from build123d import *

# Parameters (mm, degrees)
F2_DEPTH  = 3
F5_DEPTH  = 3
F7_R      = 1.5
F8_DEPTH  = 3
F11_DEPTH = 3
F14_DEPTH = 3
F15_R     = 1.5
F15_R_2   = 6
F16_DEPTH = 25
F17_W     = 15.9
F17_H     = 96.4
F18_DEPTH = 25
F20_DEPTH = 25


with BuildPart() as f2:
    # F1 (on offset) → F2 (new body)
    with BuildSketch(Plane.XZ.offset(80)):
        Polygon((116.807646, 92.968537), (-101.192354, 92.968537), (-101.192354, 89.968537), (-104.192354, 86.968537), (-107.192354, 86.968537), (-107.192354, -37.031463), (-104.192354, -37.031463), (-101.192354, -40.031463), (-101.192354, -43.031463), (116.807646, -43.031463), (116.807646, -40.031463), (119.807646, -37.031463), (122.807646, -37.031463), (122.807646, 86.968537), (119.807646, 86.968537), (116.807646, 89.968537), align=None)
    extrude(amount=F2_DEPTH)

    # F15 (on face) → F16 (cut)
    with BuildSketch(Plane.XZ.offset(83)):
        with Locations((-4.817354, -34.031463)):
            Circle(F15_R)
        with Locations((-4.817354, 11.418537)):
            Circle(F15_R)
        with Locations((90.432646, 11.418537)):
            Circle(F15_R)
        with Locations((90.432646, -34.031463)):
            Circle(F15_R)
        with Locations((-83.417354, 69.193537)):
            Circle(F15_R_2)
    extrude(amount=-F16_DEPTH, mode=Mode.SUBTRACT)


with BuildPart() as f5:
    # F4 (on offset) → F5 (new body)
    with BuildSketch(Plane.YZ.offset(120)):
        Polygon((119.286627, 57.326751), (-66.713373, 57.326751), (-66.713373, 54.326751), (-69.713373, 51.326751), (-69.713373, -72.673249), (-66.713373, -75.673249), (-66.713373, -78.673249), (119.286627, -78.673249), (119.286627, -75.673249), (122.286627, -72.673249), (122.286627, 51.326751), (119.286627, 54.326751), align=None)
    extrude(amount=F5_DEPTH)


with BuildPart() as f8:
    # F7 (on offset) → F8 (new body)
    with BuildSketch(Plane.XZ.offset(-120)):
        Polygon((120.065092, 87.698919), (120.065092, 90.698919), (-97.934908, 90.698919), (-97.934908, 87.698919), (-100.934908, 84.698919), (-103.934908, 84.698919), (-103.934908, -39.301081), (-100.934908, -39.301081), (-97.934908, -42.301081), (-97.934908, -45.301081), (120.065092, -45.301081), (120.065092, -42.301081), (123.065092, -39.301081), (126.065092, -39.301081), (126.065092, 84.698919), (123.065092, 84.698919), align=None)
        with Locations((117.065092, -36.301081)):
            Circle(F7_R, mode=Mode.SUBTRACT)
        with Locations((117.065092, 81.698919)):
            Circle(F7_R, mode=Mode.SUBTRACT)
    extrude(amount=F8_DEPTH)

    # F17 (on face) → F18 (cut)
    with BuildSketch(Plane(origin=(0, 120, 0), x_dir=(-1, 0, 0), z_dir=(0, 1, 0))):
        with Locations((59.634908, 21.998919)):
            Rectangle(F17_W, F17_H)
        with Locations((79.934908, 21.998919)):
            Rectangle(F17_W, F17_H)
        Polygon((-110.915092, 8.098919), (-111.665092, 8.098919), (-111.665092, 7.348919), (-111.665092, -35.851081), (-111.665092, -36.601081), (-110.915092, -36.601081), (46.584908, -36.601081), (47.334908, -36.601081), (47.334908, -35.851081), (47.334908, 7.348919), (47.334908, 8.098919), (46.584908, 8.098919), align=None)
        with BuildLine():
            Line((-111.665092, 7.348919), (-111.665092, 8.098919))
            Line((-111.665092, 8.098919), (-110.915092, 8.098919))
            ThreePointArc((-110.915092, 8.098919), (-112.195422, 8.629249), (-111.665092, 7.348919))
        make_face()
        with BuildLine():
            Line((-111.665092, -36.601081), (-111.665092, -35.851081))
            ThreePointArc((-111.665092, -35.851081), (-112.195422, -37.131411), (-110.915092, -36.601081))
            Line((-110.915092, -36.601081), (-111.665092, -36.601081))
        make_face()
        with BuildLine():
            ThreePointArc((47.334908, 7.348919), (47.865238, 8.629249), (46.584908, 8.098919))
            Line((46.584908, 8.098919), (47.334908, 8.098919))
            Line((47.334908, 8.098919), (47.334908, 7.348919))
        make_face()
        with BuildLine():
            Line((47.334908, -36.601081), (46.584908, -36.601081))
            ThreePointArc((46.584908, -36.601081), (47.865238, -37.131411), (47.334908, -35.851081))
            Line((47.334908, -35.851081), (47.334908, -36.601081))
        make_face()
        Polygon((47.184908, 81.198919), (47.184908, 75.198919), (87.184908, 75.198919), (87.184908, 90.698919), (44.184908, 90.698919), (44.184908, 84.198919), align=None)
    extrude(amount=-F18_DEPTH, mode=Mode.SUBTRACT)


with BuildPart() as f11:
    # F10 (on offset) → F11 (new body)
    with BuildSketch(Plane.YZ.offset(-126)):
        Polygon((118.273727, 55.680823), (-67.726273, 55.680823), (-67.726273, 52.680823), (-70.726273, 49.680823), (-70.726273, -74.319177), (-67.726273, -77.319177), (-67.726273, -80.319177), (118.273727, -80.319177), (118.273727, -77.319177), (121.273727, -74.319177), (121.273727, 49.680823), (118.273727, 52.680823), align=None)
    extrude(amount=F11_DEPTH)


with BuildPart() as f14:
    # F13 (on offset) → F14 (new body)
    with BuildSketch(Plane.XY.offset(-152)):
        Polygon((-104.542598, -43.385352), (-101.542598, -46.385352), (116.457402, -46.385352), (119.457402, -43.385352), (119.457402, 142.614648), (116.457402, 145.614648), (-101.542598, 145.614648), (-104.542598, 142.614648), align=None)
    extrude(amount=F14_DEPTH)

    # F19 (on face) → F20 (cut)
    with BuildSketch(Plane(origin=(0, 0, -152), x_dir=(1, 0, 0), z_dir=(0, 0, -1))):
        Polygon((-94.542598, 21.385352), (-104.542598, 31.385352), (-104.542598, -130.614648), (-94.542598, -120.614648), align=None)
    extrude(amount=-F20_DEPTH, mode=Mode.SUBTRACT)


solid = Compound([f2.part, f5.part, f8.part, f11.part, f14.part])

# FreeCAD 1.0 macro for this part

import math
import FreeCAD as App
import Part
import Sketcher
Q = App.Units.Quantity


def add_polygon(sketch, points):
    """Adds a closed chain of lines whose ends are joined by coincident constraints."""
    first, n = sketch.GeometryCount, len(points)
    for a, b in zip(points, points[1:] + points[:1]):
        sketch.addGeometry(Part.LineSegment(App.Vector(*a, 0), App.Vector(*b, 0)), False)
    for i in range(n):
        sketch.addConstraint(Sketcher.Constraint("Coincident", first + i, 2, first + (i + 1) % n, 1))

doc = App.newDocument("Part")
body = doc.addObject("PartDesign::Body", "Body")

sketch1 = body.newObject("Sketcher::SketchObject", "Sketch")
sketch1.AttachmentSupport = (doc.getObject("XZ_Plane"), [""])
sketch1.MapMode = "FlatFace"
sketch1.AttachmentOffset = App.Placement(App.Vector(0, 0, 80), App.Rotation())
add_polygon(sketch1, [(116.8, 93), (-101.2, 93), (-101.2, 90), (-104.2, 87), (-107.2, 87), (-107.2, -37), (-104.2, -37), (-101.2, -40), (-101.2, -43), (116.8, -43), (116.8, -40), (119.8, -37), (122.8, -37), (122.8, 87), (119.8, 87), (116.8, 90)])
sketch1.addConstraint(Sketcher.Constraint("Horizontal", 0))
sketch1.addConstraint(Sketcher.Constraint("Vertical", 1))
sketch1.addConstraint(Sketcher.Constraint("Horizontal", 3))
sketch1.addConstraint(Sketcher.Constraint("Vertical", 4))
sketch1.addConstraint(Sketcher.Constraint("Horizontal", 5))
sketch1.addConstraint(Sketcher.Constraint("Vertical", 7))
sketch1.addConstraint(Sketcher.Constraint("Horizontal", 8))
sketch1.addConstraint(Sketcher.Constraint("Vertical", 9))
sketch1.addConstraint(Sketcher.Constraint("Horizontal", 11))
sketch1.addConstraint(Sketcher.Constraint("Vertical", 12))
sketch1.addConstraint(Sketcher.Constraint("Horizontal", 13))
sketch1.addConstraint(Sketcher.Constraint("Vertical", 15))
sketch1.addConstraint(Sketcher.Constraint("Perpendicular", 2, 6))
sketch1.addConstraint(Sketcher.Constraint("Perpendicular", 6, 10))
sketch1.addConstraint(Sketcher.Constraint("Perpendicular", 10, 14))
sketch1.addConstraint(Sketcher.Constraint("Horizontal", 6, 2, 9, 2))
sketch1.addConstraint(Sketcher.Constraint("Horizontal", 5, 2, 10, 2))
sketch1.addConstraint(Sketcher.Constraint("Horizontal", 3, 2, 12, 2))
sketch1.addConstraint(Sketcher.Constraint("Horizontal", 1, 2, 14, 2))
sketch1.addConstraint(Sketcher.Constraint("Vertical", 2, 2, 5, 2))
sketch1.addConstraint(Sketcher.Constraint("Vertical", 1, 2, 6, 2))
sketch1.addConstraint(Sketcher.Constraint("Vertical", 10, 2, 13, 2))
sketch1.addConstraint(Sketcher.Constraint("Vertical", 9, 2, 14, 2))
sketch1.addConstraint(Sketcher.Constraint("Equal", 5, 11))
sketch1.addConstraint(Sketcher.Constraint("Equal", 13, 1))
sketch1.addConstraint(Sketcher.Constraint("Equal", 1, 7))
sketch1.addConstraint(Sketcher.Constraint("DistanceX", 0, 2, 0, 1, 218.0))
sketch1.addConstraint(Sketcher.Constraint("DistanceX", 3, 2, 3, 1, 3.0))
sketch1.addConstraint(Sketcher.Constraint("DistanceY", 4, 2, 4, 1, 124.0))
sketch1.addConstraint(Sketcher.Constraint("DistanceX", 2, 2, 1, 2, 3.0))
sketch1.addConstraint(Sketcher.Constraint("DistanceX", 0, 2, -1, 1, 101.192354))
sketch1.addConstraint(Sketcher.Constraint("DistanceY", -1, 1, 0, 2, 92.968537))
pad1 = body.newObject("PartDesign::Pad", "Pad")
pad1.Profile = sketch1
pad1.Length = 3

sketch2 = body.newObject("Sketcher::SketchObject", "Sketch001")
sketch2.AttachmentSupport = (doc.getObject("XZ_Plane"), [""])
sketch2.MapMode = "FlatFace"
sketch2.AttachmentOffset = App.Placement(App.Vector(0, 0, 83), App.Rotation())
sketch2.addGeometry(Part.Circle(App.Vector(-4.8, -34, 0), App.Vector(0, 0, 1), 1.5), False)
sketch2.addGeometry(Part.Circle(App.Vector(-4.8, 11.4, 0), App.Vector(0, 0, 1), 1.5), False)
sketch2.addGeometry(Part.Circle(App.Vector(90.4, 11.4, 0), App.Vector(0, 0, 1), 1.5), False)
sketch2.addGeometry(Part.Circle(App.Vector(90.4, -34, 0), App.Vector(0, 0, 1), 1.5), False)
sketch2.addGeometry(Part.Circle(App.Vector(-83.4, 69.2, 0), App.Vector(0, 0, 1), 6), False)
sketch2.addConstraint(Sketcher.Constraint("Equal", 0, 1))
sketch2.addConstraint(Sketcher.Constraint("Equal", 1, 2))
sketch2.addConstraint(Sketcher.Constraint("Equal", 2, 3))
sketch2.addConstraint(Sketcher.Constraint("Horizontal", 1, 3, 2, 3))
sketch2.addConstraint(Sketcher.Constraint("Horizontal", 0, 3, 3, 3))
sketch2.addConstraint(Sketcher.Constraint("Vertical", 0, 3, 1, 3))
sketch2.addConstraint(Sketcher.Constraint("Vertical", 2, 3, 3, 3))
sketch2.addConstraint(Sketcher.Constraint("Diameter", 0, 3.0))
sketch2.addConstraint(Sketcher.Constraint("Diameter", 4, 12.0))
sketch2.addConstraint(Sketcher.Constraint("DistanceX", 4, 3, 1, 3, 78.6))
sketch2.addConstraint(Sketcher.Constraint("DistanceY", 0, 3, 1, 3, 45.45))
sketch2.addConstraint(Sketcher.Constraint("DistanceX", 1, 3, 2, 3, 95.25))
sketch2.addConstraint(Sketcher.Constraint("DistanceY", 1, 3, 4, 3, 57.775))
sketch2.addConstraint(Sketcher.Constraint("DistanceX", 0, 3, -1, 1, 4.817354))
sketch2.addConstraint(Sketcher.Constraint("DistanceY", 0, 3, -1, 1, 34.031463))
pocket1 = body.newObject("PartDesign::Pocket", "Pocket")
pocket1.Profile = sketch2
pocket1.Length = 25
body2 = doc.addObject("PartDesign::Body", "Body001")

sketch3 = body2.newObject("Sketcher::SketchObject", "Sketch002")
sketch3.AttachmentSupport = (doc.getObject("YZ_Plane001"), [""])
sketch3.MapMode = "FlatFace"
sketch3.AttachmentOffset = App.Placement(App.Vector(0, 0, 120), App.Rotation())
add_polygon(sketch3, [(119.3, 57.3), (-66.7, 57.3), (-66.7, 54.3), (-69.7, 51.3), (-69.7, -72.7), (-66.7, -75.7), (-66.7, -78.7), (119.3, -78.7), (119.3, -75.7), (122.3, -72.7), (122.3, 51.3), (119.3, 54.3)])
sketch3.addConstraint(Sketcher.Constraint("Horizontal", 0))
sketch3.addConstraint(Sketcher.Constraint("Vertical", 1))
sketch3.addConstraint(Sketcher.Constraint("Vertical", 3))
sketch3.addConstraint(Sketcher.Constraint("Vertical", 5))
sketch3.addConstraint(Sketcher.Constraint("Horizontal", 6))
sketch3.addConstraint(Sketcher.Constraint("Vertical", 7))
sketch3.addConstraint(Sketcher.Constraint("Vertical", 9))
sketch3.addConstraint(Sketcher.Constraint("Vertical", 11))
sketch3.addConstraint(Sketcher.Constraint("Perpendicular", 2, 4))
sketch3.addConstraint(Sketcher.Constraint("Perpendicular", 4, 8))
sketch3.addConstraint(Sketcher.Constraint("Perpendicular", 8, 10))
sketch3.addConstraint(Sketcher.Constraint("Horizontal", 4, 2, 7, 2))
sketch3.addConstraint(Sketcher.Constraint("Horizontal", 3, 2, 8, 2))
sketch3.addConstraint(Sketcher.Constraint("Horizontal", 2, 2, 9, 2))
sketch3.addConstraint(Sketcher.Constraint("Horizontal", 1, 2, 10, 2))
sketch3.addConstraint(Sketcher.Constraint("Vertical", 1, 2, 4, 2))
sketch3.addConstraint(Sketcher.Constraint("Vertical", 7, 2, 10, 2))
sketch3.addConstraint(Sketcher.Constraint("Equal", 1, 5))
sketch3.addConstraint(Sketcher.Constraint("DistanceX", 0, 2, 0, 1, 186.0))
sketch3.addConstraint(Sketcher.Constraint("DistanceY", 1, 2, 1, 1, 3.0))
sketch3.addConstraint(Sketcher.Constraint("DistanceY", 3, 2, 3, 1, 124.0))
sketch3.addConstraint(Sketcher.Constraint("DistanceX", 2, 2, 1, 2, 3.0))
sketch3.addConstraint(Sketcher.Constraint("DistanceY", -1, 1, 0, 2, 57.326751))
sketch3.addConstraint(Sketcher.Constraint("DistanceX", 0, 2, -1, 1, 66.713373))
pad2 = body2.newObject("PartDesign::Pad", "Pad001")
pad2.Profile = sketch3
pad2.Length = 3
body3 = doc.addObject("PartDesign::Body", "Body002")

sketch4 = body3.newObject("Sketcher::SketchObject", "Sketch003")
sketch4.AttachmentSupport = (doc.getObject("XZ_Plane002"), [""])
sketch4.MapMode = "FlatFace"
sketch4.AttachmentOffset = App.Placement(App.Vector(0, 0, -120), App.Rotation())
add_polygon(sketch4, [(120.1, 87.7), (120.1, 90.7), (-97.9, 90.7), (-97.9, 87.7), (-100.9, 84.7), (-103.9, 84.7), (-103.9, -39.3), (-100.9, -39.3), (-97.9, -42.3), (-97.9, -45.3), (120.1, -45.3), (120.1, -42.3), (123.1, -39.3), (126.1, -39.3), (126.1, 84.7), (123.1, 84.7)])
sketch4.addGeometry(Part.Circle(App.Vector(117.1, -36.3, 0), App.Vector(0, 0, 1), 1.5), False)
sketch4.addGeometry(Part.Circle(App.Vector(117.1, 81.7, 0), App.Vector(0, 0, 1), 1.5), False)
sketch4.addConstraint(Sketcher.Constraint("Vertical", 0))
sketch4.addConstraint(Sketcher.Constraint("Horizontal", 1))
sketch4.addConstraint(Sketcher.Constraint("Vertical", 2))
sketch4.addConstraint(Sketcher.Constraint("Horizontal", 4))
sketch4.addConstraint(Sketcher.Constraint("Vertical", 5))
sketch4.addConstraint(Sketcher.Constraint("Horizontal", 6))
sketch4.addConstraint(Sketcher.Constraint("Vertical", 8))
sketch4.addConstraint(Sketcher.Constraint("Horizontal", 9))
sketch4.addConstraint(Sketcher.Constraint("Vertical", 10))
sketch4.addConstraint(Sketcher.Constraint("Horizontal", 12))
sketch4.addConstraint(Sketcher.Constraint("Vertical", 13))
sketch4.addConstraint(Sketcher.Constraint("Horizontal", 14))
sketch4.addConstraint(Sketcher.Constraint("Equal", 16, 17))
sketch4.addConstraint(Sketcher.Constraint("Perpendicular", 3, 7))
sketch4.addConstraint(Sketcher.Constraint("Perpendicular", 7, 11))
sketch4.addConstraint(Sketcher.Constraint("Perpendicular", 11, 15))
sketch4.addConstraint(Sketcher.Constraint("Horizontal", 7, 2, 10, 2))
sketch4.addConstraint(Sketcher.Constraint("Horizontal", 6, 2, 11, 2))
sketch4.addConstraint(Sketcher.Constraint("Horizontal", 4, 2, 13, 2))
sketch4.addConstraint(Sketcher.Constraint("Horizontal", 2, 2, 15, 2))
sketch4.addConstraint(Sketcher.Constraint("Vertical", 16, 3, 17, 3))
sketch4.addConstraint(Sketcher.Constraint("Vertical", 3, 2, 6, 2))
sketch4.addConstraint(Sketcher.Constraint("Vertical", 2, 2, 7, 2))
sketch4.addConstraint(Sketcher.Constraint("Vertical", 0, 2, 9, 2))
sketch4.addConstraint(Sketcher.Constraint("Vertical", 11, 2, 14, 2))
sketch4.addConstraint(Sketcher.Constraint("Equal", 6, 12))
sketch4.addConstraint(Sketcher.Constraint("Equal", 14, 0))
sketch4.addConstraint(Sketcher.Constraint("Equal", 2, 8))
sketch4.addConstraint(Sketcher.Constraint("Diameter", 16, 3.0))
sketch4.addConstraint(Sketcher.Constraint("DistanceX", 1, 2, 1, 1, 218.0))
sketch4.addConstraint(Sketcher.Constraint("DistanceX", 4, 2, 4, 1, 3.0))
sketch4.addConstraint(Sketcher.Constraint("DistanceY", 5, 2, 5, 1, 124.0))
sketch4.addConstraint(Sketcher.Constraint("DistanceY", 16, 3, 17, 3, 118.0))
sketch4.addConstraint(Sketcher.Constraint("DistanceX", 17, 3, 0, 2, 3.0))
sketch4.addConstraint(Sketcher.Constraint("DistanceY", 17, 3, 0, 2, 9.0))
sketch4.addConstraint(Sketcher.Constraint("DistanceX", 3, 2, 2, 2, 3.0))
sketch4.addConstraint(Sketcher.Constraint("DistanceY", 16, 3, -1, 1, 36.301081))
sketch4.addConstraint(Sketcher.Constraint("DistanceX", -1, 1, 16, 3, 117.065092))
pad3 = body3.newObject("PartDesign::Pad", "Pad002")
pad3.Profile = sketch4
pad3.Length = 3

sketch5 = body3.newObject("Sketcher::SketchObject", "Sketch004")
sketch5.AttachmentSupport = (doc.getObject("XZ_Plane002"), [""])
sketch5.MapMode = "FlatFace"
sketch5.AttachmentOffset = App.Placement(App.Vector(0, 0, -120), App.Rotation())
add_polygon(sketch5, [(-51.7, 70.2), (-51.7, -26.2), (-67.6, -26.2), (-67.6, 70.2)])
add_polygon(sketch5, [(-72, 70.2), (-72, -26.2), (-87.9, -26.2), (-87.9, 70.2)])
sketch5.addGeometry(Part.LineSegment(App.Vector(111.7, 7.3, 0), App.Vector(111.7, -35.9, 0)), False)
sketch5.addGeometry(Part.ArcOfCircle(Part.Circle(App.Vector(111.7, -36.6, 0), App.Vector(0, 0, 1), 0.7), math.radians(-180), math.radians(90)), False)
sketch5.addGeometry(Part.LineSegment(App.Vector(110.9, -36.6, 0), App.Vector(-46.6, -36.6, 0)), False)
sketch5.addGeometry(Part.ArcOfCircle(Part.Circle(App.Vector(-47.3, -36.6, 0), App.Vector(0, 0, 1), 0.7), math.radians(90), math.radians(360)), False)
sketch5.addGeometry(Part.LineSegment(App.Vector(-47.3, -35.9, 0), App.Vector(-47.3, 7.3, 0)), False)
sketch5.addGeometry(Part.ArcOfCircle(Part.Circle(App.Vector(-47.3, 8.1, 0), App.Vector(0, 0, 1), 0.7), math.radians(0), math.radians(270)), False)
sketch5.addGeometry(Part.LineSegment(App.Vector(-46.6, 8.1, 0), App.Vector(110.9, 8.1, 0)), False)
sketch5.addGeometry(Part.ArcOfCircle(Part.Circle(App.Vector(111.7, 8.1, 0), App.Vector(0, 0, 1), 0.7), math.radians(-90), math.radians(180)), False)
add_polygon(sketch5, [(-47.2, 81.2), (-47.2, 75.2), (-87.2, 75.2), (-87.2, 90.7), (-44.2, 90.7), (-44.2, 84.2)])
sketch5.addConstraint(Sketcher.Constraint("Coincident", 8, 2, 9, 2))
sketch5.addConstraint(Sketcher.Constraint("Coincident", 9, 1, 10, 1))
sketch5.addConstraint(Sketcher.Constraint("Coincident", 10, 2, 11, 2))
sketch5.addConstraint(Sketcher.Constraint("Coincident", 11, 1, 12, 1))
sketch5.addConstraint(Sketcher.Constraint("Coincident", 12, 2, 13, 2))
sketch5.addConstraint(Sketcher.Constraint("Coincident", 13, 1, 14, 1))
sketch5.addConstraint(Sketcher.Constraint("Coincident", 14, 2, 15, 2))
sketch5.addConstraint(Sketcher.Constraint("Coincident", 15, 1, 8, 1))
sketch5.addConstraint(Sketcher.Constraint("Vertical", 0))
sketch5.addConstraint(Sketcher.Constraint("Horizontal", 1))
sketch5.addConstraint(Sketcher.Constraint("Vertical", 2))
sketch5.addConstraint(Sketcher.Constraint("Horizontal", 3))
sketch5.addConstraint(Sketcher.Constraint("Vertical", 4))
sketch5.addConstraint(Sketcher.Constraint("Horizontal", 5))
sketch5.addConstraint(Sketcher.Constraint("Vertical", 6))
sketch5.addConstraint(Sketcher.Constraint("Horizontal", 7))
sketch5.addConstraint(Sketcher.Constraint("Vertical", 8))
sketch5.addConstraint(Sketcher.Constraint("Horizontal", 10))
sketch5.addConstraint(Sketcher.Constraint("Vertical", 12))
sketch5.addConstraint(Sketcher.Constraint("Horizontal", 14))
sketch5.addConstraint(Sketcher.Constraint("Vertical", 16))
sketch5.addConstraint(Sketcher.Constraint("Horizontal", 17))
sketch5.addConstraint(Sketcher.Constraint("Vertical", 18))
sketch5.addConstraint(Sketcher.Constraint("Horizontal", 19))
sketch5.addConstraint(Sketcher.Constraint("Vertical", 20))
sketch5.addConstraint(Sketcher.Constraint("Equal", 9, 11))
sketch5.addConstraint(Sketcher.Constraint("Equal", 11, 13))
sketch5.addConstraint(Sketcher.Constraint("Equal", 13, 15))
sketch5.addConstraint(Sketcher.Constraint("Horizontal", 9, 3, 11, 3))
sketch5.addConstraint(Sketcher.Constraint("Horizontal", 13, 3, 15, 3))
sketch5.addConstraint(Sketcher.Constraint("Horizontal", 1, 2, 4, 2))
sketch5.addConstraint(Sketcher.Constraint("Horizontal", 3, 2, 6, 2))
sketch5.addConstraint(Sketcher.Constraint("Horizontal", 11, 3, 9, 1))
sketch5.addConstraint(Sketcher.Constraint("Horizontal", 15, 3, 13, 1))
sketch5.addConstraint(Sketcher.Constraint("Vertical", 11, 3, 13, 3))
sketch5.addConstraint(Sketcher.Constraint("Vertical", 9, 3, 15, 3))
sketch5.addConstraint(Sketcher.Constraint("Vertical", 15, 3, 8, 2))
sketch5.addConstraint(Sketcher.Constraint("Vertical", 13, 3, 11, 1))
sketch5.addConstraint(Sketcher.Constraint("Equal", 3, 5))
sketch5.addConstraint(Sketcher.Constraint("DistanceX", 17, 2, 17, 1, 40.0))
sketch5.addConstraint(Sketcher.Constraint("DistanceX", 19, 1, 19, 2, 43.0))
sketch5.addConstraint(Sketcher.Constraint("DistanceY", 16, 2, 16, 1, 6.0))
sketch5.addConstraint(Sketcher.Constraint("Angle", 21, Q("-135 deg")))
sketch5.addConstraint(Sketcher.Constraint("Radius", 9, 0.75))
sketch5.addConstraint(Sketcher.Constraint("DistanceX", 1, 2, 1, 1, 15.9))
sketch5.addConstraint(Sketcher.Constraint("DistanceX", 10, 2, 10, 1, 157.5))
sketch5.addConstraint(Sketcher.Constraint("DistanceY", 0, 2, 0, 1, 96.4))
sketch5.addConstraint(Sketcher.Constraint("DistanceY", 8, 2, 8, 1, 43.2))
sketch5.addConstraint(Sketcher.Constraint("DistanceY", 18, 1, 18, 2, 15.5))
sketch5.addConstraint(Sketcher.Constraint("DistanceX", 1, 2, 10, 2, 21.0))
sketch5.addConstraint(Sketcher.Constraint("DistanceY", 3, 2, 16, 2, 5.0))
sketch5.addConstraint(Sketcher.Constraint("DistanceY", 11, 3, 0, 2, 10.4))
sketch5.addConstraint(Sketcher.Constraint("DistanceX", 4, 2, 1, 2, 4.4))
sketch5.addConstraint(Sketcher.Constraint("DistanceX", 3, 2, 16, 2, 4.5))
sketch5.addConstraint(Sketcher.Constraint("DistanceX", -1, 1, 9, 3, 111.665092))
sketch5.addConstraint(Sketcher.Constraint("DistanceY", 9, 3, -1, 1, 36.601081))
pocket2 = body3.newObject("PartDesign::Pocket", "Pocket001")
pocket2.Profile = sketch5
pocket2.Length = 25
pocket2.Reversed = True
body4 = doc.addObject("PartDesign::Body", "Body003")

sketch6 = body4.newObject("Sketcher::SketchObject", "Sketch005")
sketch6.AttachmentSupport = (doc.getObject("YZ_Plane003"), [""])
sketch6.MapMode = "FlatFace"
sketch6.AttachmentOffset = App.Placement(App.Vector(0, 0, -126), App.Rotation())
add_polygon(sketch6, [(118.3, 55.7), (-67.7, 55.7), (-67.7, 52.7), (-70.7, 49.7), (-70.7, -74.3), (-67.7, -77.3), (-67.7, -80.3), (118.3, -80.3), (118.3, -77.3), (121.3, -74.3), (121.3, 49.7), (118.3, 52.7)])
sketch6.addConstraint(Sketcher.Constraint("Horizontal", 0))
sketch6.addConstraint(Sketcher.Constraint("Vertical", 1))
sketch6.addConstraint(Sketcher.Constraint("Vertical", 3))
sketch6.addConstraint(Sketcher.Constraint("Vertical", 5))
sketch6.addConstraint(Sketcher.Constraint("Horizontal", 6))
sketch6.addConstraint(Sketcher.Constraint("Vertical", 7))
sketch6.addConstraint(Sketcher.Constraint("Vertical", 9))
sketch6.addConstraint(Sketcher.Constraint("Vertical", 11))
sketch6.addConstraint(Sketcher.Constraint("Perpendicular", 2, 4))
sketch6.addConstraint(Sketcher.Constraint("Perpendicular", 4, 8))
sketch6.addConstraint(Sketcher.Constraint("Perpendicular", 8, 10))
sketch6.addConstraint(Sketcher.Constraint("Horizontal", 4, 2, 7, 2))
sketch6.addConstraint(Sketcher.Constraint("Horizontal", 3, 2, 8, 2))
sketch6.addConstraint(Sketcher.Constraint("Horizontal", 2, 2, 9, 2))
sketch6.addConstraint(Sketcher.Constraint("Horizontal", 1, 2, 10, 2))
sketch6.addConstraint(Sketcher.Constraint("Vertical", 1, 2, 4, 2))
sketch6.addConstraint(Sketcher.Constraint("Vertical", 7, 2, 10, 2))
sketch6.addConstraint(Sketcher.Constraint("Equal", 1, 5))
sketch6.addConstraint(Sketcher.Constraint("DistanceX", 0, 2, 0, 1, 186.0))
sketch6.addConstraint(Sketcher.Constraint("DistanceY", 1, 2, 1, 1, 3.0))
sketch6.addConstraint(Sketcher.Constraint("DistanceY", 3, 2, 3, 1, 124.0))
sketch6.addConstraint(Sketcher.Constraint("DistanceX", 2, 2, 1, 2, 3.0))
sketch6.addConstraint(Sketcher.Constraint("DistanceX", 0, 2, -1, 1, 67.726273))
sketch6.addConstraint(Sketcher.Constraint("DistanceY", -1, 1, 0, 2, 55.680823))
pad4 = body4.newObject("PartDesign::Pad", "Pad003")
pad4.Profile = sketch6
pad4.Length = 3
body5 = doc.addObject("PartDesign::Body", "Body004")

sketch7 = body5.newObject("Sketcher::SketchObject", "Sketch006")
sketch7.AttachmentSupport = (doc.getObject("XY_Plane004"), [""])
sketch7.MapMode = "FlatFace"
sketch7.AttachmentOffset = App.Placement(App.Vector(0, 0, -152), App.Rotation())
add_polygon(sketch7, [(-104.5, -43.4), (-101.5, -46.4), (116.5, -46.4), (119.5, -43.4), (119.5, 142.6), (116.5, 145.6), (-101.5, 145.6), (-104.5, 142.6)])
sketch7.addConstraint(Sketcher.Constraint("Horizontal", 1))
sketch7.addConstraint(Sketcher.Constraint("Vertical", 3))
sketch7.addConstraint(Sketcher.Constraint("Horizontal", 5))
sketch7.addConstraint(Sketcher.Constraint("Vertical", 7))
sketch7.addConstraint(Sketcher.Constraint("Perpendicular", 0, 2))
sketch7.addConstraint(Sketcher.Constraint("Perpendicular", 2, 4))
sketch7.addConstraint(Sketcher.Constraint("Perpendicular", 4, 6))
sketch7.addConstraint(Sketcher.Constraint("Horizontal", 3, 2, 6, 2))
sketch7.addConstraint(Sketcher.Constraint("Horizontal", 2, 2, 7, 2))
sketch7.addConstraint(Sketcher.Constraint("Vertical", 1, 2, 4, 2))
sketch7.addConstraint(Sketcher.Constraint("Vertical", 0, 2, 5, 2))
sketch7.addConstraint(Sketcher.Constraint("DistanceX", 1, 1, 1, 2, 218.0))
sketch7.addConstraint(Sketcher.Constraint("DistanceY", 3, 1, 3, 2, 186.0))
sketch7.addConstraint(Sketcher.Constraint("DistanceX", 1, 2, 2, 2, 3.0))
sketch7.addConstraint(Sketcher.Constraint("DistanceX", 0, 2, -1, 1, 101.542598))
sketch7.addConstraint(Sketcher.Constraint("DistanceY", 0, 2, -1, 1, 46.385352))
pad5 = body5.newObject("PartDesign::Pad", "Pad004")
pad5.Profile = sketch7
pad5.Length = 3

sketch8 = body5.newObject("Sketcher::SketchObject", "Sketch007")
sketch8.AttachmentSupport = (doc.getObject("XY_Plane004"), [""])
sketch8.MapMode = "FlatFace"
sketch8.AttachmentOffset = App.Placement(App.Vector(0, 0, -152), App.Rotation())
add_polygon(sketch8, [(-95, -21), (-105, -31), (-105, 131), (-95, 121)])
sketch8.addConstraint(Sketcher.Constraint("Vertical", 1))
sketch8.addConstraint(Sketcher.Constraint("Vertical", 3))
sketch8.addConstraint(Sketcher.Constraint("Perpendicular", 0, 2))
sketch8.addConstraint(Sketcher.Constraint("Equal", 0, 2))
sketch8.addConstraint(Sketcher.Constraint("DistanceY", 1, 1, 1, 2, 162.0))
sketch8.addConstraint(Sketcher.Constraint("DistanceY", 3, 2, 3, 1, 142.0))
sketch8.addConstraint(Sketcher.Constraint("DistanceX", 0, 2, -1, 1, 104.542598))
sketch8.addConstraint(Sketcher.Constraint("DistanceY", -1, 1, 2, 2, 120.614648))
pocket3 = body5.newObject("PartDesign::Pocket", "Pocket002")
pocket3.Profile = sketch8
pocket3.Length = 25
pocket3.Reversed = True

doc.recompute()
